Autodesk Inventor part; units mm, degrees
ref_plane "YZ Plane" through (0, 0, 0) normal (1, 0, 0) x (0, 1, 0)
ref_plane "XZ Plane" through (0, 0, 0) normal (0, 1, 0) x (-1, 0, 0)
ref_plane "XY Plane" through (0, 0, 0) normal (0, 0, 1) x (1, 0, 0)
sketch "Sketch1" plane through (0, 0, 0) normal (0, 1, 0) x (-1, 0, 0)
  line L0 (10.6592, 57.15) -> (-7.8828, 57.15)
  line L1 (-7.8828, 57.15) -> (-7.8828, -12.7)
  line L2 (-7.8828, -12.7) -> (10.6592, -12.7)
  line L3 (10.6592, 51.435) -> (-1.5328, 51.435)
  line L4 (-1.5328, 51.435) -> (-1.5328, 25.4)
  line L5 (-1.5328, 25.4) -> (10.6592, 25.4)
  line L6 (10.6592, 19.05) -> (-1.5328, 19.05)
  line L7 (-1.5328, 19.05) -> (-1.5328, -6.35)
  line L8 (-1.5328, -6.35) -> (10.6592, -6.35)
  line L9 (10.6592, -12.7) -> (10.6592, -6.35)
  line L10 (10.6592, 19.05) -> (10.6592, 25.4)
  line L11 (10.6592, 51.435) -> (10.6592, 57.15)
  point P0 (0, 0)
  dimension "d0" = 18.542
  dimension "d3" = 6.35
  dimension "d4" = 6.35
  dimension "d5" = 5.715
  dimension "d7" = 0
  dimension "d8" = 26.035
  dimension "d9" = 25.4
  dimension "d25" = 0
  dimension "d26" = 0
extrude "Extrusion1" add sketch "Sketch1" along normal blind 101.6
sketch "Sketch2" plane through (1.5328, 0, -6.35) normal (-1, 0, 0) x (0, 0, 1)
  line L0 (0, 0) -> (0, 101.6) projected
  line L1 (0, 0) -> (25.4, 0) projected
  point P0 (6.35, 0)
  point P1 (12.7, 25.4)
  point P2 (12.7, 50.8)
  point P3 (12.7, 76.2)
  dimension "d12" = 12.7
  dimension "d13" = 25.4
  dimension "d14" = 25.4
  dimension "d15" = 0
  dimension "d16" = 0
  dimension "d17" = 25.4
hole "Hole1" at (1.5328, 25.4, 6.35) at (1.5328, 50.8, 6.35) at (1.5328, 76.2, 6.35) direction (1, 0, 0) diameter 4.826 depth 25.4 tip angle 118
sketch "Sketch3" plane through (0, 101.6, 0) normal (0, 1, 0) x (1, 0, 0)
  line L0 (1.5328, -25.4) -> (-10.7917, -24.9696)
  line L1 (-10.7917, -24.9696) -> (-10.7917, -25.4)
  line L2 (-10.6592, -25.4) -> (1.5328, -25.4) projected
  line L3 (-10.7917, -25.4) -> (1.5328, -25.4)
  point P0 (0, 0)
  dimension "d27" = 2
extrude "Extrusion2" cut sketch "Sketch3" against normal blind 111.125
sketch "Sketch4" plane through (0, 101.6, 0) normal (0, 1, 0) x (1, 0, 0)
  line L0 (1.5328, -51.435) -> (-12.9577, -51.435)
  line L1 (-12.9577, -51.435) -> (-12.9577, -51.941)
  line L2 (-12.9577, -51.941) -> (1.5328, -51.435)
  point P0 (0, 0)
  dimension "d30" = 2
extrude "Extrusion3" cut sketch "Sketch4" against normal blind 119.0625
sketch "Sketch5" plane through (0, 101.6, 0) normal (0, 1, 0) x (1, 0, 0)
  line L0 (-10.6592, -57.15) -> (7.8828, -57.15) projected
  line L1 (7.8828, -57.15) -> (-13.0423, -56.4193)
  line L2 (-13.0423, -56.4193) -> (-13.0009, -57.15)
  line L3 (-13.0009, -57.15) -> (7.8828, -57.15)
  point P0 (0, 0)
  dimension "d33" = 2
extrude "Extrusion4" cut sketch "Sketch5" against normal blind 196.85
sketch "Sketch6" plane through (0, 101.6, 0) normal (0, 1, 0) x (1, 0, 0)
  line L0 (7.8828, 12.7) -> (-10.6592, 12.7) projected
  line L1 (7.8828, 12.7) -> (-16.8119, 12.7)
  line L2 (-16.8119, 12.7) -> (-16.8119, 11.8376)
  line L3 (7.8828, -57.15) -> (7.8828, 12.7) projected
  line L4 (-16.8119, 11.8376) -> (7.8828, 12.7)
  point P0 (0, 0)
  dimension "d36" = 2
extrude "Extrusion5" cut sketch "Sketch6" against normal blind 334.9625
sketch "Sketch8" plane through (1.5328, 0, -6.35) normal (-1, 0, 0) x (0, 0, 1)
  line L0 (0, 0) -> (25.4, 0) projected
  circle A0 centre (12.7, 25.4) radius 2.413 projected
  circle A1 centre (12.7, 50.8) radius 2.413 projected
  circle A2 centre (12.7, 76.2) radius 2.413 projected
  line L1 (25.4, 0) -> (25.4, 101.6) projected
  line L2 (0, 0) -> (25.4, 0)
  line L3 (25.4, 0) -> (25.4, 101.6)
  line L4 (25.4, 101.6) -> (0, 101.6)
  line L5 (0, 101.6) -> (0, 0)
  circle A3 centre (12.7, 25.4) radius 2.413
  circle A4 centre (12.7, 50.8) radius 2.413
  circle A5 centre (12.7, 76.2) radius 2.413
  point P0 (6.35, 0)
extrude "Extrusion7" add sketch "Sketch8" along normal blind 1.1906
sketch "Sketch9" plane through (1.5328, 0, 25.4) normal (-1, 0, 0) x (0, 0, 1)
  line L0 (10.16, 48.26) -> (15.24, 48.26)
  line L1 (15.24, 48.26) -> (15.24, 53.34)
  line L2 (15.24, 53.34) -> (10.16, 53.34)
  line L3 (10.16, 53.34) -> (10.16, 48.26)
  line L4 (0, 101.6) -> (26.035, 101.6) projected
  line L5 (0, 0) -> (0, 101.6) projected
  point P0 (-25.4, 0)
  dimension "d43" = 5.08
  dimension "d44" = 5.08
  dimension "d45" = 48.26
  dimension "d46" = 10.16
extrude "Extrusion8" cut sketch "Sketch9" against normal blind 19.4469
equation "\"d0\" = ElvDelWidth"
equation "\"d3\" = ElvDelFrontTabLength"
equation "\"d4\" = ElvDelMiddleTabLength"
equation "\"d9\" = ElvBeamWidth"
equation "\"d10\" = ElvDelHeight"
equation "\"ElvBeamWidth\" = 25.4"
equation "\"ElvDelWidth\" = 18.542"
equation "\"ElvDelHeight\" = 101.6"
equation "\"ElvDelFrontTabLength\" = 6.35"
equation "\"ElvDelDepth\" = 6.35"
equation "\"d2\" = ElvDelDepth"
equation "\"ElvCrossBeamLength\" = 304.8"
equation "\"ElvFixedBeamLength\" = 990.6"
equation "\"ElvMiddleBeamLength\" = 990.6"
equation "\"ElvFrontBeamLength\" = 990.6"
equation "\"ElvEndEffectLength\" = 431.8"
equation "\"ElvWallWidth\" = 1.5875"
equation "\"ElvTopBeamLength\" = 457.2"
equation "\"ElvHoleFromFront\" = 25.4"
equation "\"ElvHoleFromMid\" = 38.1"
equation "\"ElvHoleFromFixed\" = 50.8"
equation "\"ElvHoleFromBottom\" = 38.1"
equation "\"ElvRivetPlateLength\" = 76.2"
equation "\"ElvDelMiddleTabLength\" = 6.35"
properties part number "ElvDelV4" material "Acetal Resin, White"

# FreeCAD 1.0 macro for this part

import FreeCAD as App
import Part
import Sketcher
from FreeCAD import Vector
Q = App.Units.Quantity


def add_polygon(sketch, points):
    """Adds a closed chain of lines whose ends are joined by coincident constraints."""
    first, n = sketch.GeometryCount, len(points)
    for a, b in zip(points, points[1:] + points[:1]):
        sketch.addGeometry(Part.LineSegment(App.Vector(*a, 0), App.Vector(*b, 0)), False)
    for i in range(n):
        sketch.addConstraint(Sketcher.Constraint("Coincident", first + i, 2, first + (i + 1) % n, 1))

doc = App.newDocument("Part")
body = doc.addObject("PartDesign::Body", "Body")

# Sketch on XZ plane
sketch1 = body.newObject("Sketcher::SketchObject", "Sketch")
sketch1.AttachmentSupport = (doc.getObject("XZ_Plane"), [""])
sketch1.MapMode = "FlatFace"
add_polygon(sketch1, [(-10.6592, 51.435), (-10.6592, 57.15), (7.8828, 57.15), (7.8828, -12.7), (-10.6592, -12.7), (-10.6592, -6.35), (1.5328, -6.35), (1.5328, 19.05), (-10.6592, 19.05), (-10.6592, 25.4), (1.5328, 25.4), (1.5328, 51.435)])  # lines 0-11
sketch1.addConstraint(Sketcher.Constraint("Vertical", 0))
sketch1.addConstraint(Sketcher.Constraint("Horizontal", 1))
sketch1.addConstraint(Sketcher.Constraint("Vertical", 2))
sketch1.addConstraint(Sketcher.Constraint("Horizontal", 3))
sketch1.addConstraint(Sketcher.Constraint("Vertical", 4))
sketch1.addConstraint(Sketcher.Constraint("Horizontal", 5))
sketch1.addConstraint(Sketcher.Constraint("Vertical", 6))
sketch1.addConstraint(Sketcher.Constraint("Horizontal", 7))
sketch1.addConstraint(Sketcher.Constraint("Vertical", 8))
sketch1.addConstraint(Sketcher.Constraint("Horizontal", 9))
sketch1.addConstraint(Sketcher.Constraint("Vertical", 10))
sketch1.addConstraint(Sketcher.Constraint("Horizontal", 11))
sketch1.addConstraint(Sketcher.Constraint("Vertical", 0, 2, 3, 2))
sketch1.addConstraint(Sketcher.Constraint("Vertical", 4, 2, 7, 2))
sketch1.addConstraint(Sketcher.Constraint("Vertical", 6, 2, 9, 2))
sketch1.addConstraint(Sketcher.Constraint("Equal", 4, 8))
sketch1.addConstraint(Sketcher.Constraint("DistanceY", 6, 1, 6, 2, Q("1 in")))
sketch1.addConstraint(Sketcher.Constraint("DistanceY", -1, 1, 8, 2, Q("1 in")))
sketch1.addConstraint(Sketcher.Constraint("DistanceX", 1, 1, 1, 2, Q("0.73 in")))
sketch1.addConstraint(Sketcher.Constraint("DistanceY", 4, 1, 4, 2, Q("0.25 in")))
sketch1.addConstraint(Sketcher.Constraint("DistanceY", 0, 1, 0, 2, Q("0.225 in")))
sketch1.addConstraint(Sketcher.Constraint("DistanceY", 10, 1, 10, 2, Q("1.025 in")))
sketch1.addConstraint(Sketcher.Constraint("DistanceX", 5, 2, 2, 2, Q("0.25 in")))
sketch1.addConstraint(Sketcher.Constraint("DistanceX", 0, 2, -1, 1, 10.6592))
pad1 = body.newObject("PartDesign::Pad", "Pad")
pad1.Profile = sketch1
pad1.Length = Q("4 in")
pad1.Reversed = True

# Sketch on YZ plane
sketch2 = body.newObject("Sketcher::SketchObject", "Sketch001")
sketch2.AttachmentSupport = (doc.getObject("YZ_Plane"), [""])
sketch2.MapMode = "FlatFace"
sketch2.AttachmentOffset = App.Placement(Vector(0, 0, 1.5328), App.Rotation())
sketch2.addGeometry(Part.Circle(Vector(25.4, 6.35, 0), Vector(0, 0, 1), 2.413), False)
sketch2.addGeometry(Part.Circle(Vector(50.8, 6.35, 0), Vector(0, 0, 1), 2.413), False)
sketch2.addGeometry(Part.Circle(Vector(76.2, 6.35, 0), Vector(0, 0, 1), 2.413), False)
sketch2.addConstraint(Sketcher.Constraint("Equal", 0, 1))
sketch2.addConstraint(Sketcher.Constraint("Equal", 1, 2))
sketch2.addConstraint(Sketcher.Constraint("Horizontal", 0, 3, 1, 3))
sketch2.addConstraint(Sketcher.Constraint("Horizontal", 1, 3, 2, 3))
sketch2.addConstraint(Sketcher.Constraint("Diameter", 0, Q("0.19 in")))
sketch2.addConstraint(Sketcher.Constraint("DistanceX", -1, 1, 0, 3, Q("1 in")))
sketch2.addConstraint(Sketcher.Constraint("DistanceX", -1, 1, 1, 3, Q("2 in")))
sketch2.addConstraint(Sketcher.Constraint("DistanceX", -1, 1, 2, 3, Q("3 in")))
sketch2.addConstraint(Sketcher.Constraint("DistanceY", -1, 1, 0, 3, Q("0.25 in")))
doc.recompute()
hole = body.newObject("PartDesign::Hole", "Hole")
hole.Profile = sketch2
hole.ThreadType = "None"
hole.Diameter = Q("0.19 in")
hole.DepthType = "Dimension"
hole.Depth = Q("1 in")
hole.DrillPoint = "Angled"
hole.DrillPointAngle = 118
hole.Reversed = True

# Sketch on XZ plane
sketch3 = body.newObject("Sketcher::SketchObject", "Sketch002")
sketch3.AttachmentSupport = (doc.getObject("XZ_Plane"), [""])
sketch3.MapMode = "FlatFace"
sketch3.AttachmentOffset = App.Placement(Vector(0, 0, -4 * 25.4), App.Rotation())
add_polygon(sketch3, [(-10.7917, 25.4), (1.5328, 25.4), (-10.7917, 24.9696)])  # lines 0-2
sketch3.addConstraint(Sketcher.Constraint("Horizontal", 0))
sketch3.addConstraint(Sketcher.Constraint("Vertical", 2))
sketch3.addConstraint(Sketcher.Constraint("DistanceY", -1, 1, 0, 2, Q("1 in")))
sketch3.addConstraint(Sketcher.Constraint("Angle", 1, Q("-178 deg")))
sketch3.addConstraint(Sketcher.Constraint("DistanceX", 0, 1, 0, 2, 12.3245))
sketch3.addConstraint(Sketcher.Constraint("DistanceX", -1, 1, 0, 2, 1.5328))
pocket1 = body.newObject("PartDesign::Pocket", "Pocket")
pocket1.Profile = sketch3
pocket1.Length = Q("4.375 in")
pocket1.Reversed = True

# Sketch on XZ plane
sketch4 = body.newObject("Sketcher::SketchObject", "Sketch003")
sketch4.AttachmentSupport = (doc.getObject("XZ_Plane"), [""])
sketch4.MapMode = "FlatFace"
sketch4.AttachmentOffset = App.Placement(Vector(0, 0, -4 * 25.4), App.Rotation())
add_polygon(sketch4, [(-12.9577, 51.941), (1.5328, 51.435), (-12.9577, 51.435)])  # lines 0-2
sketch4.addConstraint(Sketcher.Constraint("Horizontal", 1))
sketch4.addConstraint(Sketcher.Constraint("Vertical", 2))
sketch4.addConstraint(Sketcher.Constraint("Angle", 0, Q("-2 deg")))
sketch4.addConstraint(Sketcher.Constraint("DistanceX", 1, 2, 1, 1, Q("0.5705 in")))
sketch4.addConstraint(Sketcher.Constraint("DistanceY", -1, 1, 0, 2, Q("2.025 in")))
sketch4.addConstraint(Sketcher.Constraint("DistanceX", -1, 1, 0, 2, 1.5328))
pocket2 = body.newObject("PartDesign::Pocket", "Pocket001")
pocket2.Profile = sketch4
pocket2.Length = Q("4.6875 in")
pocket2.Reversed = True

# Sketch on XZ plane
sketch5 = body.newObject("Sketcher::SketchObject", "Sketch004")
sketch5.AttachmentSupport = (doc.getObject("XZ_Plane"), [""])
sketch5.MapMode = "FlatFace"
sketch5.AttachmentOffset = App.Placement(Vector(0, 0, -4 * 25.4), App.Rotation())
add_polygon(sketch5, [(-13.0009, 57.15), (7.8828, 57.15), (-13.0423, 56.4193)])  # lines 0-2
sketch5.addConstraint(Sketcher.Constraint("Horizontal", 0))
sketch5.addConstraint(Sketcher.Constraint("Angle", 1, Q("-178 deg")))
sketch5.addConstraint(Sketcher.Constraint("DistanceY", -1, 1, 0, 2, Q("2.25 in")))
sketch5.addConstraint(Sketcher.Constraint("DistanceX", 0, 1, 0, 2, Q("0.8222 in")))
sketch5.addConstraint(Sketcher.Constraint("Distance", 1, 20.9379))
sketch5.addConstraint(Sketcher.Constraint("DistanceX", -1, 1, 0, 2, 7.8828))
pocket3 = body.newObject("PartDesign::Pocket", "Pocket002")
pocket3.Profile = sketch5
pocket3.Length = Q("7.75 in")
pocket3.Reversed = True

# Sketch on XZ plane
sketch6 = body.newObject("Sketcher::SketchObject", "Sketch005")
sketch6.AttachmentSupport = (doc.getObject("XZ_Plane"), [""])
sketch6.MapMode = "FlatFace"
sketch6.AttachmentOffset = App.Placement(Vector(0, 0, -4 * 25.4), App.Rotation())
add_polygon(sketch6, [(-16.8119, -11.8376), (7.8828, -12.7), (-16.8119, -12.7)])  # lines 0-2
sketch6.addConstraint(Sketcher.Constraint("Horizontal", 1))
sketch6.addConstraint(Sketcher.Constraint("Vertical", 2))
sketch6.addConstraint(Sketcher.Constraint("Angle", 0, Q("-2 deg")))
sketch6.addConstraint(Sketcher.Constraint("DistanceY", 0, 2, -1, 1, Q("0.5 in")))
sketch6.addConstraint(Sketcher.Constraint("DistanceX", 1, 2, 1, 1, 24.6947))
sketch6.addConstraint(Sketcher.Constraint("DistanceX", -1, 1, 0, 2, 7.8828))
pocket4 = body.newObject("PartDesign::Pocket", "Pocket003")
pocket4.Profile = sketch6
pocket4.Length = Q("13.1875 in")
pocket4.Reversed = True

# Sketch on YZ plane
sketch7 = body.newObject("Sketcher::SketchObject", "Sketch006")
sketch7.AttachmentSupport = (doc.getObject("YZ_Plane"), [""])
sketch7.MapMode = "FlatFace"
sketch7.AttachmentOffset = App.Placement(Vector(0, 0, 1.5328), App.Rotation())
add_polygon(sketch7, [(101.6, -6.35), (0, -6.35), (0, 19.05), (101.6, 19.05)])  # lines 0-3
sketch7.addGeometry(Part.Circle(Vector(25.4, 6.35, 0), Vector(0, 0, 1), 2.413), False)  # 4
sketch7.addGeometry(Part.Circle(Vector(50.8, 6.35, 0), Vector(0, 0, 1), 2.413), False)  # 5
sketch7.addGeometry(Part.Circle(Vector(76.2, 6.35, 0), Vector(0, 0, 1), 2.413), False)  # 6
sketch7.addConstraint(Sketcher.Constraint("Horizontal", 0))
sketch7.addConstraint(Sketcher.Constraint("Vertical", 1))
sketch7.addConstraint(Sketcher.Constraint("Horizontal", 2))
sketch7.addConstraint(Sketcher.Constraint("Vertical", 3))
sketch7.addConstraint(Sketcher.Constraint("Equal", 4, 5))
sketch7.addConstraint(Sketcher.Constraint("Equal", 5, 6))
sketch7.addConstraint(Sketcher.Constraint("PointOnObject", 0, 2, -2))
sketch7.addConstraint(Sketcher.Constraint("Horizontal", 4, 3, 5, 3))
sketch7.addConstraint(Sketcher.Constraint("Horizontal", 5, 3, 6, 3))
sketch7.addConstraint(Sketcher.Constraint("Diameter", 4, Q("0.19 in")))
sketch7.addConstraint(Sketcher.Constraint("DistanceX", 0, 2, 0, 1, Q("4 in")))
sketch7.addConstraint(Sketcher.Constraint("DistanceY", 1, 1, 1, 2, Q("1 in")))
sketch7.addConstraint(Sketcher.Constraint("DistanceX", -1, 1, 4, 3, Q("1 in")))
sketch7.addConstraint(Sketcher.Constraint("DistanceX", -1, 1, 5, 3, Q("2 in")))
sketch7.addConstraint(Sketcher.Constraint("DistanceX", -1, 1, 6, 3, Q("3 in")))
sketch7.addConstraint(Sketcher.Constraint("DistanceY", 0, 2, 4, 3, Q("0.5 in")))
sketch7.addConstraint(Sketcher.Constraint("DistanceY", -1, 1, 4, 3, Q("0.25 in")))
pad2 = body.newObject("PartDesign::Pad", "Pad001")
pad2.Profile = sketch7
pad2.Length = Q("0.046874 in")
pad2.Reversed = True

# Sketch on YZ plane
sketch8 = body.newObject("Sketcher::SketchObject", "Sketch007")
sketch8.AttachmentSupport = (doc.getObject("YZ_Plane"), [""])
sketch8.MapMode = "FlatFace"
sketch8.AttachmentOffset = App.Placement(Vector(0, 0, 1.5328), App.Rotation())
add_polygon(sketch8, [(53.34, 35.56), (48.26, 35.56), (48.26, 40.64), (53.34, 40.64)])  # lines 0-3
sketch8.addConstraint(Sketcher.Constraint("Horizontal", 0))
sketch8.addConstraint(Sketcher.Constraint("Vertical", 1))
sketch8.addConstraint(Sketcher.Constraint("Horizontal", 2))
sketch8.addConstraint(Sketcher.Constraint("Vertical", 3))
sketch8.addConstraint(Sketcher.Constraint("Equal", 2, 1))
sketch8.addConstraint(Sketcher.Constraint("DistanceX", 0, 2, 0, 1, Q("0.2 in")))
sketch8.addConstraint(Sketcher.Constraint("DistanceX", -1, 1, 0, 2, Q("1.9 in")))
sketch8.addConstraint(Sketcher.Constraint("DistanceY", -1, 1, 0, 2, Q("1.4 in")))
pocket5 = body.newObject("PartDesign::Pocket", "Pocket004")
pocket5.Profile = sketch8
pocket5.Length = Q("0.765626 in")
pocket5.Reversed = True

doc.recompute()
